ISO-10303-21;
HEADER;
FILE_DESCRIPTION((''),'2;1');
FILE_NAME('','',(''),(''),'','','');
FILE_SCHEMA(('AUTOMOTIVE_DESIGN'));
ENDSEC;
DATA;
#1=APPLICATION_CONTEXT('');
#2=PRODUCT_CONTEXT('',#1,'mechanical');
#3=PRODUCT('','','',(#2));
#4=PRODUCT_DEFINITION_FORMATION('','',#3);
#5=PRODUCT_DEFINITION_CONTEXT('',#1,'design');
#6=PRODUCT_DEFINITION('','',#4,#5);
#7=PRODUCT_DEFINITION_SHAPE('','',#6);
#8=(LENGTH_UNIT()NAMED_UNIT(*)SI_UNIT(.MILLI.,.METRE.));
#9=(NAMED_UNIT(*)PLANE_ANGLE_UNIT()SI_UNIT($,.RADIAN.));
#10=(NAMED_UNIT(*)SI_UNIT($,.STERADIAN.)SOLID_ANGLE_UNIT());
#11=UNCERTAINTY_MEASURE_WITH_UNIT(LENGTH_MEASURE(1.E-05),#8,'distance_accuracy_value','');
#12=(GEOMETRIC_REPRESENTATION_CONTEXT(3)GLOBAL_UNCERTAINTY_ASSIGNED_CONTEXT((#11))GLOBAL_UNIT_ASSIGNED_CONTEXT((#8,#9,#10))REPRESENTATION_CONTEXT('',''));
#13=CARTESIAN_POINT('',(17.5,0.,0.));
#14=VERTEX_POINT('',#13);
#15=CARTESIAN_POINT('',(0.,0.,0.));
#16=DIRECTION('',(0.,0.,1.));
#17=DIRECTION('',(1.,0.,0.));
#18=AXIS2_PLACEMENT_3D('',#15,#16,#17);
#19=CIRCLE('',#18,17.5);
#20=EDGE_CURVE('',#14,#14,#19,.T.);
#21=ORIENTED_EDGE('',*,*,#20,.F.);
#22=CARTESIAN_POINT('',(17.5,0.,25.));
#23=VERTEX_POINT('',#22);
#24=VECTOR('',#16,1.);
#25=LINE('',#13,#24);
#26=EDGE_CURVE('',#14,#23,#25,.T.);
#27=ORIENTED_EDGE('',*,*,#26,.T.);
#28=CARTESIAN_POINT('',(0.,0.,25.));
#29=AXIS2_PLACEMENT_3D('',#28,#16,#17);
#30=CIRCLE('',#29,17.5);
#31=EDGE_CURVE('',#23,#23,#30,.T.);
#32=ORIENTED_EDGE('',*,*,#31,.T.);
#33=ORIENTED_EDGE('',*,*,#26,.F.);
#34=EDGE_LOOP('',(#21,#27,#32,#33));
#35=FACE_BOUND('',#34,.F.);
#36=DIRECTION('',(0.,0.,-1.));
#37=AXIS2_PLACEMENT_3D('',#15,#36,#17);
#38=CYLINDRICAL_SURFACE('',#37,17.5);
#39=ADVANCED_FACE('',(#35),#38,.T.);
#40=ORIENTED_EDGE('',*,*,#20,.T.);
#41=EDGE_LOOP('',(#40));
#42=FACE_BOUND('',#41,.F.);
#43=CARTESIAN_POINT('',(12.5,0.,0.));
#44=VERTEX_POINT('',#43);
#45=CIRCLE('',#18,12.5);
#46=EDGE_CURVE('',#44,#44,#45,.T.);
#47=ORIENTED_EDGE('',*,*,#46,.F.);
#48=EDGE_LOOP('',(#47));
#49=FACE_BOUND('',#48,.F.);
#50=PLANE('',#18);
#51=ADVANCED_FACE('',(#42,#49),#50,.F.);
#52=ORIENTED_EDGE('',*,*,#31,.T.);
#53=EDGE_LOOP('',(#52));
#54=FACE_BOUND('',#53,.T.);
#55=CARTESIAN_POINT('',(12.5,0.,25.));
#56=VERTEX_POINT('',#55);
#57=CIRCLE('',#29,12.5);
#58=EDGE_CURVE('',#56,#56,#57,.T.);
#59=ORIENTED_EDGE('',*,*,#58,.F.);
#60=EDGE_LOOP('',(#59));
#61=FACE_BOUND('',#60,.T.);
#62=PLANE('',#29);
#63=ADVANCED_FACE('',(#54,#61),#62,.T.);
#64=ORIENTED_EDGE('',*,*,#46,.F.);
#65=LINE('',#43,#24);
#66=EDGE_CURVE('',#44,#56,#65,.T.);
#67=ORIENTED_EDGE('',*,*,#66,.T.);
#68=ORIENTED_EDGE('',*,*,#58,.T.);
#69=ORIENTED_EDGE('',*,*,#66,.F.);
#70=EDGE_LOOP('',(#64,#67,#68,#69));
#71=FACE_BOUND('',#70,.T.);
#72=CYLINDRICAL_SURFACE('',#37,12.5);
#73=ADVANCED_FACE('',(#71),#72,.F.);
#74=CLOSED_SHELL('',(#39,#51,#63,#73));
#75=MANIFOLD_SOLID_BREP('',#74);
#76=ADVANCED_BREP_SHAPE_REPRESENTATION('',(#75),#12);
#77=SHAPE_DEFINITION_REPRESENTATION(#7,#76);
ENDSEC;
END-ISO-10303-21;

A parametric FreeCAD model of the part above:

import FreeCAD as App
import Part
import Sketcher
Q = App.Units.Quantity

doc = App.newDocument("Part")
body = doc.addObject("PartDesign::Body", "Body")

# Sketch on XY plane
sketch1 = doc.addObject("Sketcher::SketchObject", "Sketch")
body.addObject(sketch1)
sketch1.AttachmentSupport = (doc.XY_Plane, [""])
sketch1.MapMode = "FlatFace"
sketch1.addGeometry(Part.Circle(App.Vector(0, 0, 0), App.Vector(0, 0, 1), 18), False)
sketch1.addGeometry(Part.Circle(App.Vector(0, 0, 0), App.Vector(0, 0, 1), 12), False)
sketch1.addConstraint(Sketcher.Constraint("Coincident", 0, 3, -1, 1))
sketch1.addConstraint(Sketcher.Constraint("Coincident", 1, 3, -1, 1))
sketch1.addConstraint(Sketcher.Constraint("Diameter", 0, Q("35 mm")))
sketch1.addConstraint(Sketcher.Constraint("Diameter", 1, Q("25 mm")))
pad1 = doc.addObject("PartDesign::Pad", "Pad")
body.addObject(pad1)
pad1.Profile = sketch1
pad1.Length = 25

doc.recompute()
